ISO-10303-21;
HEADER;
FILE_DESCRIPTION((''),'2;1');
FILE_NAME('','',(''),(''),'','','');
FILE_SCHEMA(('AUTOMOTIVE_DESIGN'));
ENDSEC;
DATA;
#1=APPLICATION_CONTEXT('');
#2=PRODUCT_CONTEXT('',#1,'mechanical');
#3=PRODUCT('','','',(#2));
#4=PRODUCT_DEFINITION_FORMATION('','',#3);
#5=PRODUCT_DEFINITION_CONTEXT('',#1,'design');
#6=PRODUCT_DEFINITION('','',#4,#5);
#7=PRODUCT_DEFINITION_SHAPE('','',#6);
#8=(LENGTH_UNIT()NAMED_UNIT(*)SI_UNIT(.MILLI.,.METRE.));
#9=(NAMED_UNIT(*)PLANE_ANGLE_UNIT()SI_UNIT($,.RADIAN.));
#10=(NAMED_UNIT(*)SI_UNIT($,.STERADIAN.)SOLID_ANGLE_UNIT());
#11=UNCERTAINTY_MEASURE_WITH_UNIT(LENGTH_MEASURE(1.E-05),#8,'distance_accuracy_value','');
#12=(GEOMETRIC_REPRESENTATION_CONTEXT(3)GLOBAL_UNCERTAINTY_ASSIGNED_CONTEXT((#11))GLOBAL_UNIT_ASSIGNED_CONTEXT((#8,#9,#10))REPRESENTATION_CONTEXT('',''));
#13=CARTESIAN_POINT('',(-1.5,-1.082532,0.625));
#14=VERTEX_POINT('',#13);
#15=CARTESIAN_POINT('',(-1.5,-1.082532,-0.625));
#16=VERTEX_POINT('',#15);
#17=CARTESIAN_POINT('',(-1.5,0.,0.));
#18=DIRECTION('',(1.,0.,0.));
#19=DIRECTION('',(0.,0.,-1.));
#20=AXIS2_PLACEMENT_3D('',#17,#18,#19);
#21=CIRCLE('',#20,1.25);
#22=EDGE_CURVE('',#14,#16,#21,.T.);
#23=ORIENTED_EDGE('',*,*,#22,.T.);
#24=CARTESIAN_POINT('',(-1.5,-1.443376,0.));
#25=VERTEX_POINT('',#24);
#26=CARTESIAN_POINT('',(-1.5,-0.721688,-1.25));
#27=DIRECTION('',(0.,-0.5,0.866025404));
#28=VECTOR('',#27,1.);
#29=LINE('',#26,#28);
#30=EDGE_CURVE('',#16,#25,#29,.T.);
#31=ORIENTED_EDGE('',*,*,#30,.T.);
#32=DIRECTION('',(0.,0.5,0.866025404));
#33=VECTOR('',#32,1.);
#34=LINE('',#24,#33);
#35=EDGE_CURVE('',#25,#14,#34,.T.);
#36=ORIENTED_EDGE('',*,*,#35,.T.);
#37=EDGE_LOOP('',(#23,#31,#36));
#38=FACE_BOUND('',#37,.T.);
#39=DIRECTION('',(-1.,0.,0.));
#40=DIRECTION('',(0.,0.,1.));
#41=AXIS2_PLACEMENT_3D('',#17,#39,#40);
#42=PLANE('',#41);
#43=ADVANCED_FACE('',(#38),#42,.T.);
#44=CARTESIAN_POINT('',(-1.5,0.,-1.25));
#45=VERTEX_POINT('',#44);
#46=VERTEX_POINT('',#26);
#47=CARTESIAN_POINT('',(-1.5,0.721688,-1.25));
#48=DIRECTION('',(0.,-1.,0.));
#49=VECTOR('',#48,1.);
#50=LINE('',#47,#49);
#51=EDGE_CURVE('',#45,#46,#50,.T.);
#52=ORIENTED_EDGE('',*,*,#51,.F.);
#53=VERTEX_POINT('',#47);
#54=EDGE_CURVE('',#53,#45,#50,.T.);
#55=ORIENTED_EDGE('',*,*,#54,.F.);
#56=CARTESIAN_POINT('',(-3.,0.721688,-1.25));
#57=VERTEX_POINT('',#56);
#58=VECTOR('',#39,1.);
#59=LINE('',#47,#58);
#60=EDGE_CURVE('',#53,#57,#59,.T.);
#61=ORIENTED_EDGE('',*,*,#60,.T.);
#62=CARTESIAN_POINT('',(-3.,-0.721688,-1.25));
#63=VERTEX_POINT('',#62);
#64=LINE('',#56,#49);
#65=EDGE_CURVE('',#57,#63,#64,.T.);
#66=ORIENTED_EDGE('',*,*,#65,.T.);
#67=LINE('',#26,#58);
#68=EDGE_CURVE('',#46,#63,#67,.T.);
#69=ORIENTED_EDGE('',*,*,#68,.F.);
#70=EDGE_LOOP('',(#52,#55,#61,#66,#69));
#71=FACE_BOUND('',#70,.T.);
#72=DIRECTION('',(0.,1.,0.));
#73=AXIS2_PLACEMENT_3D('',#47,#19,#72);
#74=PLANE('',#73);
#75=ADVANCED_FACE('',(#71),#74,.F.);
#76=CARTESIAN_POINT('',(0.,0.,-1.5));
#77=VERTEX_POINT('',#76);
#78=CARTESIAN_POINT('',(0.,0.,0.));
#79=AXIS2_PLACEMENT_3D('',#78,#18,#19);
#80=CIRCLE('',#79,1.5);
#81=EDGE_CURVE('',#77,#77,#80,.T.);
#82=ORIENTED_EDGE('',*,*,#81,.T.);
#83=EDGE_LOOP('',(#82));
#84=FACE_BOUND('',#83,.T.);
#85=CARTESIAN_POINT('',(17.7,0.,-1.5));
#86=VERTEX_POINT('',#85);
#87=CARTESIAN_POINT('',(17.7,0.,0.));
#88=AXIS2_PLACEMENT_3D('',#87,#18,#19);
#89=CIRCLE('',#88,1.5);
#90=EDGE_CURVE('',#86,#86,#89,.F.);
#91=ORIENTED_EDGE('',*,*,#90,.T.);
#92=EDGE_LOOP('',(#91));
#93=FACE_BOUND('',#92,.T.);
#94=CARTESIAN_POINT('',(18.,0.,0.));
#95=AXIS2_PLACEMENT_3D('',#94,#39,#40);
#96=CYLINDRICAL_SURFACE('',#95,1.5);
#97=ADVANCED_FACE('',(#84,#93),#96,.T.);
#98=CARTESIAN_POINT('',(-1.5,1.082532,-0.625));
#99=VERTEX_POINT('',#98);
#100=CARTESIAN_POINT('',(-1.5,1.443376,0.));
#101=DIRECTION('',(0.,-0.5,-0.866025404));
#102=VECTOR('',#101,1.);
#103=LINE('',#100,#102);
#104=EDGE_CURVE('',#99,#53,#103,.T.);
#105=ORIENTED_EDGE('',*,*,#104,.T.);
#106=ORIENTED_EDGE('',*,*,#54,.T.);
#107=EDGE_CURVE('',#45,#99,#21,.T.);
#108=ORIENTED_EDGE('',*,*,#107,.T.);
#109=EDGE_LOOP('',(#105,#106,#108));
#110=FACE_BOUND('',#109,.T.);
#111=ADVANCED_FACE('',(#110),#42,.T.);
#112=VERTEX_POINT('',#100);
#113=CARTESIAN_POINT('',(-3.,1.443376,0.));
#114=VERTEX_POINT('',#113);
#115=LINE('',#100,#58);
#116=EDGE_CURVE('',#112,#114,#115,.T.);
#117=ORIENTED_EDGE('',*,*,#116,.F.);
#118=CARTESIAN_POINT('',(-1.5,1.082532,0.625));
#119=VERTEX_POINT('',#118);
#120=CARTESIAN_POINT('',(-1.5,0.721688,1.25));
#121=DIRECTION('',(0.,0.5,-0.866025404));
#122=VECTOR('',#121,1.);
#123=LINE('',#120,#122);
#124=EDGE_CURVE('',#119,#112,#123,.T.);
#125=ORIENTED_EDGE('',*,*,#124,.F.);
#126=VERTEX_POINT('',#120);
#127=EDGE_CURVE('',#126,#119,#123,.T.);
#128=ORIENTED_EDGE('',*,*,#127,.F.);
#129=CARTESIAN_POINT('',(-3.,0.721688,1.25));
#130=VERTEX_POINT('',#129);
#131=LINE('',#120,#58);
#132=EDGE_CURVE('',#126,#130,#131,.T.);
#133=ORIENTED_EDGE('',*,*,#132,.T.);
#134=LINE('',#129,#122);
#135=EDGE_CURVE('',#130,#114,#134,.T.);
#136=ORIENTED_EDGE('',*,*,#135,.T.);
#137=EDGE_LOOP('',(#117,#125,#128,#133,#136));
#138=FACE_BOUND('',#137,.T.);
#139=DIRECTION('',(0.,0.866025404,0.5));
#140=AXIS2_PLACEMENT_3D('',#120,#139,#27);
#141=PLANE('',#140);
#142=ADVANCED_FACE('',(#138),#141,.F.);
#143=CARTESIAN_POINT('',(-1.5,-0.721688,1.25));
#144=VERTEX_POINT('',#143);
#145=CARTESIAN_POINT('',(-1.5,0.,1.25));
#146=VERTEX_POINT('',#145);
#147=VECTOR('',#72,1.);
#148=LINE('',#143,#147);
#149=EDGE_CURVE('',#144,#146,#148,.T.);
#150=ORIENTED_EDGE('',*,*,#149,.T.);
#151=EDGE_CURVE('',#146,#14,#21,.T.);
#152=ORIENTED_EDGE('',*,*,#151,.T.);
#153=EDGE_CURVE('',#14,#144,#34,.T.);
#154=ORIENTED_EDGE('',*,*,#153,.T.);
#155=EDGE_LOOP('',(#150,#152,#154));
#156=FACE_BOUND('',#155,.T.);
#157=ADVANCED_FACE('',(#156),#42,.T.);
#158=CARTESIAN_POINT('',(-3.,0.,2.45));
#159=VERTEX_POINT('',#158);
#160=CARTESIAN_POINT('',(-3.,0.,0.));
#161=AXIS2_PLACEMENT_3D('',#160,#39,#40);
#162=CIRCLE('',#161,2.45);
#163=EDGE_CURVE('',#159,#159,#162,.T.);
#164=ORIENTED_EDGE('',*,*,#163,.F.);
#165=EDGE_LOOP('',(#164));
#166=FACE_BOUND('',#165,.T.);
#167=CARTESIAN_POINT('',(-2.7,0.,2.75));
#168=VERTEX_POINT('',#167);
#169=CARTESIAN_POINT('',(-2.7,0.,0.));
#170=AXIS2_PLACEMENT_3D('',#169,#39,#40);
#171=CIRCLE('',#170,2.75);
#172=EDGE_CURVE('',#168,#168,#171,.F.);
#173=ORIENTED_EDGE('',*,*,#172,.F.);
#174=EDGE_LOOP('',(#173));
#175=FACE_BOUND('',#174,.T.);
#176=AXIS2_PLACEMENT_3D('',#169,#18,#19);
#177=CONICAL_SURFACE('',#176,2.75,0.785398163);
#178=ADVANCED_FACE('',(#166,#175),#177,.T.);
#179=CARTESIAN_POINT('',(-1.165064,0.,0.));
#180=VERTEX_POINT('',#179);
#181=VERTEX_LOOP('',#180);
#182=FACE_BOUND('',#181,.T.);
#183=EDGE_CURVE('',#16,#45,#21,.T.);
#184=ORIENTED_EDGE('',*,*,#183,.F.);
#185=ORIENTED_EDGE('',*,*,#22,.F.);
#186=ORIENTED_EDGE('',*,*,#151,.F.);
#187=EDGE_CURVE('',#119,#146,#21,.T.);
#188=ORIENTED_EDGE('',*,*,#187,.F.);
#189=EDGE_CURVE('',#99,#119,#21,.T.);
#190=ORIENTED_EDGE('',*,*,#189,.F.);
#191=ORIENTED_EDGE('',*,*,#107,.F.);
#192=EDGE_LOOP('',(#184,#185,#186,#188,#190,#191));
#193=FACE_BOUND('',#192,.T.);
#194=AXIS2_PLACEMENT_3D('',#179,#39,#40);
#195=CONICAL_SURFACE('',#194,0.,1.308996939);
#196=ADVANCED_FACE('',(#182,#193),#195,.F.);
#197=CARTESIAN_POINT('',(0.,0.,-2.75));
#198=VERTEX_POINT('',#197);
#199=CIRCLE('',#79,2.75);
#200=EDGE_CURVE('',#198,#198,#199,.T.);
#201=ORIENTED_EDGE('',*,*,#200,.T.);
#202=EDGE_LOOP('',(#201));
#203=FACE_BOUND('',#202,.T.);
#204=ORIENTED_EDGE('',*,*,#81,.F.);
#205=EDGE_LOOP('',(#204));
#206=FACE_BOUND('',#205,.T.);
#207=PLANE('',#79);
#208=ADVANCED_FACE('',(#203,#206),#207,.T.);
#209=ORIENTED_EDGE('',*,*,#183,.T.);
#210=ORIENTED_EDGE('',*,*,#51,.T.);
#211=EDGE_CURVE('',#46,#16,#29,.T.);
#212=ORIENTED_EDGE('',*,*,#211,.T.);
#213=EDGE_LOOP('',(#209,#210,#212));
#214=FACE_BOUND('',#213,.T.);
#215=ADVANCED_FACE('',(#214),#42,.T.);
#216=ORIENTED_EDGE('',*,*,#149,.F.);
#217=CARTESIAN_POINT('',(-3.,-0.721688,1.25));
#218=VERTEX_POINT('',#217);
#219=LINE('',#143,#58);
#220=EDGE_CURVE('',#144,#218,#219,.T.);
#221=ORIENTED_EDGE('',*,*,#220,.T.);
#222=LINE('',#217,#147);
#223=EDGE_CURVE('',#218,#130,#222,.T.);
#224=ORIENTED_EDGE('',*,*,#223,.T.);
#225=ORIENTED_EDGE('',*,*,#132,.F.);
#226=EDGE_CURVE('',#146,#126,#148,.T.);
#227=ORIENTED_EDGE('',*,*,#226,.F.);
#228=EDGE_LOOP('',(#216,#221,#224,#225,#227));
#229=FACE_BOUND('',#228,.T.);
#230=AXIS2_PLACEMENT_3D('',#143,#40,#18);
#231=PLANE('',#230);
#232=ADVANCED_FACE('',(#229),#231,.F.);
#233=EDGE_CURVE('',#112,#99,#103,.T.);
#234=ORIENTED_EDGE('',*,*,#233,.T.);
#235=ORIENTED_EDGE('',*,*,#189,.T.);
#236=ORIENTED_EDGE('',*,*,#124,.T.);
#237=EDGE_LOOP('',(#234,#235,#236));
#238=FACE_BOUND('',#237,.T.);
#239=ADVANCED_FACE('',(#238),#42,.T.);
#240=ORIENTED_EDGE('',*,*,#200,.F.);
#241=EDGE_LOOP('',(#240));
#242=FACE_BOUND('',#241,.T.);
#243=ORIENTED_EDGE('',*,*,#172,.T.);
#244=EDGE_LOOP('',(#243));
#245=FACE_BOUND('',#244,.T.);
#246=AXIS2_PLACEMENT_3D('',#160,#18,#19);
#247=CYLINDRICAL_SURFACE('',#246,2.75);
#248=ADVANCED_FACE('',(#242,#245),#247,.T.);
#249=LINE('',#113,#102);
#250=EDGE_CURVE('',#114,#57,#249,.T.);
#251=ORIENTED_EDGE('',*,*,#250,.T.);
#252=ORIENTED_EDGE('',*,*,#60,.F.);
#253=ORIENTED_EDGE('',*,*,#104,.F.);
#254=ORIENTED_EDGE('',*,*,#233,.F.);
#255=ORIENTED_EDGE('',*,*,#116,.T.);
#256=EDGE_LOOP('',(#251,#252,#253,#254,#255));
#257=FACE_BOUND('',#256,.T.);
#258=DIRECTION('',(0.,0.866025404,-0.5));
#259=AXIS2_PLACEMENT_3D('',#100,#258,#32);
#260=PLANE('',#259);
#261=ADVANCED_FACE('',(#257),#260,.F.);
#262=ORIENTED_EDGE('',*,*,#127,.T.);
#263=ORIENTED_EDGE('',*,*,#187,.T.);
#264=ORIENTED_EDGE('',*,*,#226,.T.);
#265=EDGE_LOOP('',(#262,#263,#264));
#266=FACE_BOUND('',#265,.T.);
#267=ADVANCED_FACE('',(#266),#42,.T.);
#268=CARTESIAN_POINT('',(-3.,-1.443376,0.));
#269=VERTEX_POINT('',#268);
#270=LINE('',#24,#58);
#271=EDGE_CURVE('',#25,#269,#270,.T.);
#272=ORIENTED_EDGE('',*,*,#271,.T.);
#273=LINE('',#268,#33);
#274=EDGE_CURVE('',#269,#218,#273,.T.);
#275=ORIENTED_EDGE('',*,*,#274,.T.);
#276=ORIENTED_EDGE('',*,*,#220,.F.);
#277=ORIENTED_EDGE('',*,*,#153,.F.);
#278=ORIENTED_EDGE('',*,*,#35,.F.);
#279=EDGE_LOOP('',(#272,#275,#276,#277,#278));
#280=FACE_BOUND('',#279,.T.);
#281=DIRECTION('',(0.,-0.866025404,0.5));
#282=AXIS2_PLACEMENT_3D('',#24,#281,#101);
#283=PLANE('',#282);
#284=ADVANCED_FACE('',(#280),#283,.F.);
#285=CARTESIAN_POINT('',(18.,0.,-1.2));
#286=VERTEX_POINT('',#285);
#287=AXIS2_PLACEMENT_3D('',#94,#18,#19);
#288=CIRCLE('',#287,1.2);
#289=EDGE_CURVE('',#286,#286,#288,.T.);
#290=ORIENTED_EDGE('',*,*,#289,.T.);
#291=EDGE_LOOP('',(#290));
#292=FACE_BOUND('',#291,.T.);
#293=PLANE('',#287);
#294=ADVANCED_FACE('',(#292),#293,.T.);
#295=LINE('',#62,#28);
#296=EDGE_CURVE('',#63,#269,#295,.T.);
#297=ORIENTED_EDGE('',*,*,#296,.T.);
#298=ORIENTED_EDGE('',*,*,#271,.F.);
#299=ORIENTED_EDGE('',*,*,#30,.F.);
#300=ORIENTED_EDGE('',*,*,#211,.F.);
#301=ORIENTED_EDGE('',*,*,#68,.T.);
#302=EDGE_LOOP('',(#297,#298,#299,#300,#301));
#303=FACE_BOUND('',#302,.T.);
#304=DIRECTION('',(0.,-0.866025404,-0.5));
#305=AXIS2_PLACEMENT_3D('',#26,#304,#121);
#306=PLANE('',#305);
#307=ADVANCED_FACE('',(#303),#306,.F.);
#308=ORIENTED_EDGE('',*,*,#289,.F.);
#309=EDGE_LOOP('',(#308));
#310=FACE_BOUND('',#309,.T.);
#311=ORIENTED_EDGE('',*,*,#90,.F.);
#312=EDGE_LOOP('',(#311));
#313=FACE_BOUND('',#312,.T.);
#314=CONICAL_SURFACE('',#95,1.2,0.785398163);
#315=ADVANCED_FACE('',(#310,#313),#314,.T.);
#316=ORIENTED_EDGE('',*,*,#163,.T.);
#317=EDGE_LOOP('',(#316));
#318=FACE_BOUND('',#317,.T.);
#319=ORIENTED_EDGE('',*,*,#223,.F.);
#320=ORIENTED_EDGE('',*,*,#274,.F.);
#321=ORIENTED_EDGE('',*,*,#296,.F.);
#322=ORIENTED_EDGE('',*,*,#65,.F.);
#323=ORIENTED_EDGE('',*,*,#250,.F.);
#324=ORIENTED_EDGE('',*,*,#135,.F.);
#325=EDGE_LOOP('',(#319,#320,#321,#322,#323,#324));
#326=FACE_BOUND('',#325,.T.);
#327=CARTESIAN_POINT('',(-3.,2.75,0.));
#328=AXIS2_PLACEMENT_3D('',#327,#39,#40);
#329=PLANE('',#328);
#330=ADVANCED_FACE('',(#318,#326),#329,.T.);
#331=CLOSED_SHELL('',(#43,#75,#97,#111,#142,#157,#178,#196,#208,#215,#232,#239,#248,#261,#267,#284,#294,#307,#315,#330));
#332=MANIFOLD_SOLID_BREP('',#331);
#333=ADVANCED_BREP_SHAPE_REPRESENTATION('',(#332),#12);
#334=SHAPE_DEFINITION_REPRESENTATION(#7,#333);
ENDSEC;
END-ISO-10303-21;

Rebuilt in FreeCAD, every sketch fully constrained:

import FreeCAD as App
import Part
import Sketcher
Q = App.Units.Quantity


def edges_at(feature, points):
    """Names of the edges that pass closest to the given points."""
    edges = feature.Shape.Edges
    near = lambda p: min(range(len(edges)), key=lambda i: edges[i].distToShape(Part.Vertex(*p))[0])
    return sorted({f"Edge{near(p) + 1}" for p in points})

doc = App.newDocument("Part")
body = doc.addObject("PartDesign::Body", "Body")

# Sketch on XY plane
sketch1 = body.newObject("Sketcher::SketchObject", "Sketch")
sketch1.AttachmentSupport = (doc.getObject("XY_Plane"), [""])
sketch1.MapMode = "FlatFace"
sketch1.addGeometry(Part.LineSegment(App.Vector(-3, 2.75, 0), App.Vector(-3, 0, 0)), False)
sketch1.addGeometry(Part.LineSegment(App.Vector(-3, 0, 0), App.Vector(0, 0, 0)), False)
sketch1.addGeometry(Part.LineSegment(App.Vector(0, 0, 0), App.Vector(0, 2.75, 0)), False)
sketch1.addGeometry(Part.LineSegment(App.Vector(0, 2.75, 0), App.Vector(-3, 2.75, 0)), False)
sketch1.addConstraint(Sketcher.Constraint("Coincident", 0, 2, 1, 1))
sketch1.addConstraint(Sketcher.Constraint("Coincident", 1, 2, 2, 1))
sketch1.addConstraint(Sketcher.Constraint("Coincident", 2, 2, 3, 1))
sketch1.addConstraint(Sketcher.Constraint("Coincident", 3, 2, 0, 1))
sketch1.addConstraint(Sketcher.Constraint("Vertical", 0))
sketch1.addConstraint(Sketcher.Constraint("Horizontal", 1))
sketch1.addConstraint(Sketcher.Constraint("Vertical", 2))
sketch1.addConstraint(Sketcher.Constraint("Horizontal", 3))
sketch1.addConstraint(Sketcher.Constraint("Coincident", 1, 2, -1, 1))
sketch1.addConstraint(Sketcher.Constraint("DistanceX", 1, 1, 1, 2, 3.0))
sketch1.addConstraint(Sketcher.Constraint("DistanceY", 0, 2, 0, 1, 2.75))
revolution = body.newObject("PartDesign::Revolution", "Revolution")
revolution.Profile = sketch1
revolution.ReferenceAxis = (sketch1, ["H_Axis"])
revolution.Angle = 360

# Sketch on YZ plane
sketch2 = body.newObject("Sketcher::SketchObject", "Sketch001")
sketch2.AttachmentSupport = (doc.getObject("YZ_Plane"), [""])
sketch2.MapMode = "FlatFace"
sketch2.addGeometry(Part.Circle(App.Vector(0, 0, 0), App.Vector(0, 0, 1), 1.5), False)
sketch2.addConstraint(Sketcher.Constraint("Coincident", 0, 3, -1, 1))
sketch2.addConstraint(Sketcher.Constraint("Diameter", 0, 3.0))
pad1 = body.newObject("PartDesign::Pad", "Pad")
pad1.Profile = sketch2
pad1.Length = 18

# Sketch on YZ plane
sketch3 = body.newObject("Sketcher::SketchObject", "Sketch002")
sketch3.AttachmentSupport = (doc.getObject("YZ_Plane"), [""])
sketch3.MapMode = "FlatFace"
sketch3.AttachmentOffset = App.Placement(App.Vector(0, 0, -3), App.Rotation())
sketch3.addGeometry(Part.LineSegment(App.Vector(-0.721688, 1.25, 0), App.Vector(0.721688, 1.25, 0)), False)
sketch3.addGeometry(Part.LineSegment(App.Vector(0.721688, 1.25, 0), App.Vector(1.443376, 0, 0)), False)
sketch3.addGeometry(Part.LineSegment(App.Vector(1.443376, 0, 0), App.Vector(0.721688, -1.25, 0)), False)
sketch3.addGeometry(Part.LineSegment(App.Vector(0.721688, -1.25, 0), App.Vector(-0.721688, -1.25, 0)), False)
sketch3.addGeometry(Part.LineSegment(App.Vector(-0.721688, -1.25, 0), App.Vector(-1.443376, 0, 0)), False)
sketch3.addGeometry(Part.LineSegment(App.Vector(-1.443376, 0, 0), App.Vector(-0.721688, 1.25, 0)), False)
sketch3.addConstraint(Sketcher.Constraint("Coincident", 0, 2, 1, 1))
sketch3.addConstraint(Sketcher.Constraint("Coincident", 1, 2, 2, 1))
sketch3.addConstraint(Sketcher.Constraint("Coincident", 2, 2, 3, 1))
sketch3.addConstraint(Sketcher.Constraint("Coincident", 3, 2, 4, 1))
sketch3.addConstraint(Sketcher.Constraint("Coincident", 4, 2, 5, 1))
sketch3.addConstraint(Sketcher.Constraint("Coincident", 5, 2, 0, 1))
sketch3.addConstraint(Sketcher.Constraint("Horizontal", 0))
sketch3.addConstraint(Sketcher.Constraint("Horizontal", 3))
sketch3.addConstraint(Sketcher.Constraint("Symmetric", 0, 2, 3, 2, -1, 1))
sketch3.addConstraint(Sketcher.Constraint("Symmetric", 1, 2, 4, 2, -1, 1))
sketch3.addConstraint(Sketcher.Constraint("PointOnObject", 1, 2, -1))
sketch3.addConstraint(Sketcher.Constraint("Parallel", 2, 5))
sketch3.addConstraint(Sketcher.Constraint("Vertical", 0, 2, 2, 2))
sketch3.addConstraint(Sketcher.Constraint("Angle", 1, Q("-60 deg")))
sketch3.addConstraint(Sketcher.Constraint("DistanceY", 2, 2, 0, 2, 2.5))
sketch3.addConstraint(Sketcher.Constraint("DistanceX", 0, 1, 0, 2, 1.443376))
pocket1 = body.newObject("PartDesign::Pocket", "Pocket")
pocket1.Profile = sketch3
pocket1.Length = 1.5
pocket1.Reversed = True

# Sketch on XY plane
sketch4 = body.newObject("Sketcher::SketchObject", "Sketch003")
sketch4.AttachmentSupport = (doc.getObject("XY_Plane"), [""])
sketch4.MapMode = "FlatFace"
sketch4.addGeometry(Part.LineSegment(App.Vector(-1.5, 1.25, 0), App.Vector(-1.5, 0, 0)), False)
sketch4.addGeometry(Part.LineSegment(App.Vector(-1.5, 0, 0), App.Vector(-1.165064, 0, 0)), False)
sketch4.addGeometry(Part.LineSegment(App.Vector(-1.165064, 0, 0), App.Vector(-1.5, 1.25, 0)), False)
sketch4.addConstraint(Sketcher.Constraint("Coincident", 0, 2, 1, 1))
sketch4.addConstraint(Sketcher.Constraint("Coincident", 1, 2, 2, 1))
sketch4.addConstraint(Sketcher.Constraint("Coincident", 2, 2, 0, 1))
sketch4.addConstraint(Sketcher.Constraint("Vertical", 0))
sketch4.addConstraint(Sketcher.Constraint("Horizontal", 1))
sketch4.addConstraint(Sketcher.Constraint("PointOnObject", 0, 2, -1))
sketch4.addConstraint(Sketcher.Constraint("Angle", 2, Q("105 deg")))
sketch4.addConstraint(Sketcher.Constraint("DistanceY", 0, 2, 0, 1, 1.25))
sketch4.addConstraint(Sketcher.Constraint("DistanceX", 0, 2, -1, 1, 1.5))
groove = body.newObject("PartDesign::Groove", "Groove")
groove.Profile = sketch4
groove.ReferenceAxis = (sketch4, ["H_Axis"])
groove.Angle = 360
doc.recompute()

chamfer = body.newObject("PartDesign::Chamfer", "Chamfer")
chamfer.Base = (groove, edges_at(groove, [(-3, 0, 2.75), (18, 0, 1.5)]))
chamfer.Size = 0.3

doc.recompute()
